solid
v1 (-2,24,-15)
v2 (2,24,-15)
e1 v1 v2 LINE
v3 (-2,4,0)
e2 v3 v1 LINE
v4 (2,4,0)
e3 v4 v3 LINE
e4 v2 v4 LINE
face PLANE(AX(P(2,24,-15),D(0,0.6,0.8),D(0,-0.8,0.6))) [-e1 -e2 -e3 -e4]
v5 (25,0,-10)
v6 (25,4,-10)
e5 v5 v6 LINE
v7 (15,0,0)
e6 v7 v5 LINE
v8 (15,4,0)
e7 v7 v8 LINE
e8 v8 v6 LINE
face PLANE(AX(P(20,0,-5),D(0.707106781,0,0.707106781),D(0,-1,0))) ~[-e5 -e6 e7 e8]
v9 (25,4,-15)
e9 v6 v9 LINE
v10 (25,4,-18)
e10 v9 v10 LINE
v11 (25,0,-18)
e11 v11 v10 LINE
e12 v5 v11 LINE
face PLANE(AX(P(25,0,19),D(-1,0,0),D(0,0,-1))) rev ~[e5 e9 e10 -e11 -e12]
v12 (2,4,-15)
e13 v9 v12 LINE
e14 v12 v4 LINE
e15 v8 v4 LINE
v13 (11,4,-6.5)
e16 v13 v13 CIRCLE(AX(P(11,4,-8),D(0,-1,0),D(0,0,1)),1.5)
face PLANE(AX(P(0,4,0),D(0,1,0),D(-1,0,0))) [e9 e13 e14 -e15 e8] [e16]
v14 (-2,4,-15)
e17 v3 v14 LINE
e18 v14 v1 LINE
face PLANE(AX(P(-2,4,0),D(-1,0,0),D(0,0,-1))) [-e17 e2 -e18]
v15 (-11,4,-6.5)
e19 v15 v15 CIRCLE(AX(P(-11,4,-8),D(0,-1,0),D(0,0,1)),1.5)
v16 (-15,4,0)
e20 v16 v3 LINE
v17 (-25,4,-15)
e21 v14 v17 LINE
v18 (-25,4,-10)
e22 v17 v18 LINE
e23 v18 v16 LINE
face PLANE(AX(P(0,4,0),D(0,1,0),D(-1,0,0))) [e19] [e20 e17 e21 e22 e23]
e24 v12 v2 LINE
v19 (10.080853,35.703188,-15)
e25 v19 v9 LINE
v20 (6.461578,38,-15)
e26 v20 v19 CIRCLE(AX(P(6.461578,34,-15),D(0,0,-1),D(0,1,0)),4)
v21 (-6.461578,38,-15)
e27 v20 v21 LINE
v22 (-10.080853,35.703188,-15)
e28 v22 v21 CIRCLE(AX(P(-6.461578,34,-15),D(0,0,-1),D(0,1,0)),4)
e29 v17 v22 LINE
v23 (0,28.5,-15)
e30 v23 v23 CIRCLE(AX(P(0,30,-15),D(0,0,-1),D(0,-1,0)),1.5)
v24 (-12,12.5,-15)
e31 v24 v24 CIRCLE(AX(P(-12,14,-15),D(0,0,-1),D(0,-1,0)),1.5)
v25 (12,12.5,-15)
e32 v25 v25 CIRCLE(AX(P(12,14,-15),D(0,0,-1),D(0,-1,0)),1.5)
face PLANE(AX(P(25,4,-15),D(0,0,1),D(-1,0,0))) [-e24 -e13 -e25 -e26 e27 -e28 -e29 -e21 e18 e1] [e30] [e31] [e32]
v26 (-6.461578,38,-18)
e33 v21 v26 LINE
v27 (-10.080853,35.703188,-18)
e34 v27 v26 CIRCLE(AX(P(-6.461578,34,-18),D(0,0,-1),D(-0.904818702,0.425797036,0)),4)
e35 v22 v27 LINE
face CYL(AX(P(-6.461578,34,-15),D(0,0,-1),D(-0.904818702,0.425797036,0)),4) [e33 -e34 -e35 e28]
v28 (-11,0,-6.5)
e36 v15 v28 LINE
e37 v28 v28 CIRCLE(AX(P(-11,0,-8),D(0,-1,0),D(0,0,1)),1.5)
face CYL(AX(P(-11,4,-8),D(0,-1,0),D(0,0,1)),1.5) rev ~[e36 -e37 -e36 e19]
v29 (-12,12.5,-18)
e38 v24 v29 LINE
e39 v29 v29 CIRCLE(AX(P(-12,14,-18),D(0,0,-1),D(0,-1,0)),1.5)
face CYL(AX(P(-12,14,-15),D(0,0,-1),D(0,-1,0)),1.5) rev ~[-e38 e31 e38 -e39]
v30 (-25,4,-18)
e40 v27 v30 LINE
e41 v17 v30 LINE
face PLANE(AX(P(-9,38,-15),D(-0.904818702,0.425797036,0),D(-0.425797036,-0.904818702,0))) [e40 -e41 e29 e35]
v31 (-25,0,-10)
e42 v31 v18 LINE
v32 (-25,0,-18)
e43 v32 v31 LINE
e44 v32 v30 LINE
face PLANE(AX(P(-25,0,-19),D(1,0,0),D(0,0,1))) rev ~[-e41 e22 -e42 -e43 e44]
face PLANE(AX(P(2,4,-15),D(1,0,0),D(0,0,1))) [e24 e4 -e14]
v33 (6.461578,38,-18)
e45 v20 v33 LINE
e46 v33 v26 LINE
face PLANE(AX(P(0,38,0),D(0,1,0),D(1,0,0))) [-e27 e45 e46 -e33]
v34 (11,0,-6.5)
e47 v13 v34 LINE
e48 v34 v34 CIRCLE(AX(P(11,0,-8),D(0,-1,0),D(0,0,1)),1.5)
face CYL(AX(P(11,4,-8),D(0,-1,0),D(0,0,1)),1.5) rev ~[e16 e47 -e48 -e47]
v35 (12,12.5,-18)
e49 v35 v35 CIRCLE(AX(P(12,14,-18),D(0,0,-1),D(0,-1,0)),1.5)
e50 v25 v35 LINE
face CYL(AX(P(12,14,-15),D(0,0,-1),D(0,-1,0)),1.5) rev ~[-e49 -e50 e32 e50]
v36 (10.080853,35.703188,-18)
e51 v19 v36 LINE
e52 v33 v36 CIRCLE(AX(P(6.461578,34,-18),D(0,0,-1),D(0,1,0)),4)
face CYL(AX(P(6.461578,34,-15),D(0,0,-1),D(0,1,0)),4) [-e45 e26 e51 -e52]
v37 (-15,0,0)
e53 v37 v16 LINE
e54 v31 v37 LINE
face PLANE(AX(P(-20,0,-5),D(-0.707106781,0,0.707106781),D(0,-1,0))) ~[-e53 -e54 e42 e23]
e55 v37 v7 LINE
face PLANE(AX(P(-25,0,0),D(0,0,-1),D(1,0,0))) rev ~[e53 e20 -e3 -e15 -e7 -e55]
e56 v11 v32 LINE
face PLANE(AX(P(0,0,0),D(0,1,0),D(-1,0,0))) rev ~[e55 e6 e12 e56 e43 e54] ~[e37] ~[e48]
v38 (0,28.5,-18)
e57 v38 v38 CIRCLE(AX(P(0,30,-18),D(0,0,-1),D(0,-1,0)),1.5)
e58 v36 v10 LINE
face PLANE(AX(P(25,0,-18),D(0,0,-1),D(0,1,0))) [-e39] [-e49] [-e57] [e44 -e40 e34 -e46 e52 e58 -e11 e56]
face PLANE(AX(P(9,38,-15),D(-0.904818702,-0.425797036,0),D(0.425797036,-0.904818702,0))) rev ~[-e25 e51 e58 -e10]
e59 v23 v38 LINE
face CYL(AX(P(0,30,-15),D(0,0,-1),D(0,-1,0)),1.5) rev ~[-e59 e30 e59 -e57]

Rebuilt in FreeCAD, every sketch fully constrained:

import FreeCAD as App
import Part
import Sketcher

V = App.Vector


def edges_at(feature, points):
    """Names of the edges that pass closest to the given points."""
    edges = feature.Shape.Edges
    near = lambda p: min(range(len(edges)), key=lambda i: edges[i].distToShape(Part.Vertex(*p))[0])
    return sorted({f"Edge{near(p) + 1}" for p in points})

doc = App.newDocument("Part")
body = doc.addObject("PartDesign::Body", "Body")

# Sketch on XZ plane
sketch1 = doc.addObject("Sketcher::SketchObject", "Sketch")
body.addObject(sketch1)
sketch1.AttachmentSupport = (doc.XZ_Plane, [""])
sketch1.MapMode = "FlatFace"
sketch1.addGeometry(Part.LineSegment(V(-25, -19, 0), V(-25, 19, 0)), False)
sketch1.addGeometry(Part.LineSegment(V(-25, 19, 0), V(25, 19, 0)), False)
sketch1.addGeometry(Part.LineSegment(V(25, 19, 0), V(25, -19, 0)), False)
sketch1.addGeometry(Part.LineSegment(V(25, -19, 0), V(-25, -19, 0)), False)
sketch1.addConstraint(Sketcher.Constraint("Coincident", 0, 2, 1, 1))
sketch1.addConstraint(Sketcher.Constraint("Coincident", 1, 2, 2, 1))
sketch1.addConstraint(Sketcher.Constraint("Coincident", 2, 2, 3, 1))
sketch1.addConstraint(Sketcher.Constraint("Coincident", 3, 2, 0, 1))
sketch1.addConstraint(Sketcher.Constraint("Vertical", 0))
sketch1.addConstraint(Sketcher.Constraint("Horizontal", 1))
sketch1.addConstraint(Sketcher.Constraint("Vertical", 2))
sketch1.addConstraint(Sketcher.Constraint("Horizontal", 3))
sketch1.addConstraint(Sketcher.Constraint("Symmetric", 0, 2, 2, 2, -1, 1))
sketch1.addConstraint(Sketcher.Constraint("DistanceX", 1, 1, 1, 2, 50.0))
sketch1.addConstraint(Sketcher.Constraint("DistanceY", 0, 1, 0, 2, 38.0))
pad1 = doc.addObject("PartDesign::Pad", "Pad")
body.addObject(pad1)
pad1.Profile = sketch1
pad1.Length = 4
pad1.Reversed = True

# Sketch on XZ plane
sketch2 = doc.addObject("Sketcher::SketchObject", "Sketch001")
body.addObject(sketch2)
sketch2.AttachmentSupport = (doc.XZ_Plane, [""])
sketch2.MapMode = "FlatFace"
sketch2.AttachmentOffset = App.Placement(V(0, 0, -4), App.Rotation())
sketch2.addGeometry(Part.LineSegment(V(25, -19, 0), V(-25, -19, 0)), False)
sketch2.addGeometry(Part.LineSegment(V(-25, -19, 0), V(-25, -15, 0)), False)
sketch2.addGeometry(Part.LineSegment(V(-25, -15, 0), V(25, -15, 0)), False)
sketch2.addGeometry(Part.LineSegment(V(25, -15, 0), V(25, -19, 0)), False)
sketch2.addConstraint(Sketcher.Constraint("Coincident", 0, 2, 1, 1))
sketch2.addConstraint(Sketcher.Constraint("Coincident", 1, 2, 2, 1))
sketch2.addConstraint(Sketcher.Constraint("Coincident", 2, 2, 3, 1))
sketch2.addConstraint(Sketcher.Constraint("Coincident", 3, 2, 0, 1))
sketch2.addConstraint(Sketcher.Constraint("Horizontal", 0))
sketch2.addConstraint(Sketcher.Constraint("Vertical", 1))
sketch2.addConstraint(Sketcher.Constraint("Horizontal", 2))
sketch2.addConstraint(Sketcher.Constraint("Vertical", 3))
sketch2.addConstraint(Sketcher.Constraint("DistanceY", 1, 1, 1, 2, 4.0))
sketch2.addConstraint(Sketcher.Constraint("DistanceX", 0, 2, 0, 1, 50.0))
sketch2.addConstraint(Sketcher.Constraint("DistanceX", 0, 2, -1, 1, 25.0))
sketch2.addConstraint(Sketcher.Constraint("DistanceY", 0, 2, -1, 1, 19.0))
pad2 = doc.addObject("PartDesign::Pad", "Pad001")
body.addObject(pad2)
pad2.Profile = sketch2
pad2.Length = 34
pad2.Reversed = True

# Sketch on XZ plane
sketch3 = doc.addObject("Sketcher::SketchObject", "Sketch002")
body.addObject(sketch3)
sketch3.AttachmentSupport = (doc.XZ_Plane, [""])
sketch3.MapMode = "FlatFace"
sketch3.AttachmentOffset = App.Placement(V(0, 0, -4), App.Rotation())
sketch3.addGeometry(Part.Circle(V(-11, -8, 0), V(0, 0, 1), 1.5), False)
sketch3.addGeometry(Part.Circle(V(-11, 8, 0), V(0, 0, 1), 1.5), False)
sketch3.addGeometry(Part.Circle(V(11, 8, 0), V(0, 0, 1), 1.5), False)
sketch3.addGeometry(Part.Circle(V(11, -8, 0), V(0, 0, 1), 1.5), False)
sketch3.addConstraint(Sketcher.Constraint("Equal", 0, 1))
sketch3.addConstraint(Sketcher.Constraint("Equal", 1, 2))
sketch3.addConstraint(Sketcher.Constraint("Equal", 2, 3))
sketch3.addConstraint(Sketcher.Constraint("Symmetric", 0, 3, 2, 3, -1, 1))
sketch3.addConstraint(Sketcher.Constraint("Symmetric", 1, 3, 3, 3, -1, 1))
sketch3.addConstraint(Sketcher.Constraint("Symmetric", 1, 3, 2, 3, -2))
sketch3.addConstraint(Sketcher.Constraint("Diameter", 0, 3.0))
sketch3.addConstraint(Sketcher.Constraint("DistanceX", 0, 3, -1, 1, 11.0))
sketch3.addConstraint(Sketcher.Constraint("DistanceY", 0, 3, -1, 1, 8.0))
doc.recompute()
hole = doc.addObject("PartDesign::Hole", "Hole")
body.addObject(hole)
hole.Profile = sketch3
hole.ThreadType = "None"
hole.Diameter = 3
hole.DepthType = "Dimension"
hole.Depth = 8
hole.DrillPoint = "Angled"
hole.DrillPointAngle = 118
hole.Reversed = True

# Sketch on XY plane
sketch4 = doc.addObject("Sketcher::SketchObject", "Sketch003")
body.addObject(sketch4)
sketch4.AttachmentSupport = (doc.XY_Plane, [""])
sketch4.MapMode = "FlatFace"
sketch4.AttachmentOffset = App.Placement(V(0, 0, -15), App.Rotation())
sketch4.addGeometry(Part.Circle(V(0, 30, 0), V(0, 0, 1), 1.5), False)
sketch4.addGeometry(Part.Circle(V(-12, 14, 0), V(0, 0, 1), 1.5), False)
sketch4.addGeometry(Part.Circle(V(12, 14, 0), V(0, 0, 1), 1.5), False)
sketch4.addConstraint(Sketcher.Constraint("Equal", 0, 1))
sketch4.addConstraint(Sketcher.Constraint("Equal", 1, 2))
sketch4.addConstraint(Sketcher.Constraint("Symmetric", 1, 3, 2, 3, -2))
sketch4.addConstraint(Sketcher.Constraint("PointOnObject", 0, 3, -2))
sketch4.addConstraint(Sketcher.Constraint("Diameter", 0, 3.0))
sketch4.addConstraint(Sketcher.Constraint("DistanceY", -1, 1, 0, 3, 30.0))
sketch4.addConstraint(Sketcher.Constraint("DistanceX", 1, 3, -1, 1, 12.0))
sketch4.addConstraint(Sketcher.Constraint("DistanceY", -1, 1, 1, 3, 14.0))
doc.recompute()
hole2 = doc.addObject("PartDesign::Hole", "Hole001")
body.addObject(hole2)
hole2.Profile = sketch4
hole2.ThreadType = "None"
hole2.Diameter = 3
hole2.DepthType = "Dimension"
hole2.Depth = 8
hole2.DrillPoint = "Angled"
hole2.DrillPointAngle = 118

# Sketch on XY plane
sketch5 = doc.addObject("Sketcher::SketchObject", "Sketch004")
body.addObject(sketch5)
sketch5.AttachmentSupport = (doc.XY_Plane, [""])
sketch5.MapMode = "FlatFace"
sketch5.AttachmentOffset = App.Placement(V(0, 0, -15), App.Rotation())
sketch5.addGeometry(Part.LineSegment(V(-9, 38, 0), V(-25, 38, 0)), False)
sketch5.addGeometry(Part.LineSegment(V(-25, 38, 0), V(-25, 4, 0)), False)
sketch5.addGeometry(Part.LineSegment(V(-25, 4, 0), V(-9, 38, 0)), False)
sketch5.addGeometry(Part.LineSegment(V(25, 38, 0), V(9, 38, 0)), False)
sketch5.addGeometry(Part.LineSegment(V(9, 38, 0), V(25, 4, 0)), False)
sketch5.addGeometry(Part.LineSegment(V(25, 4, 0), V(25, 38, 0)), False)
sketch5.addConstraint(Sketcher.Constraint("Coincident", 0, 2, 1, 1))
sketch5.addConstraint(Sketcher.Constraint("Coincident", 1, 2, 2, 1))
sketch5.addConstraint(Sketcher.Constraint("Coincident", 2, 2, 0, 1))
sketch5.addConstraint(Sketcher.Constraint("Coincident", 3, 2, 4, 1))
sketch5.addConstraint(Sketcher.Constraint("Coincident", 4, 2, 5, 1))
sketch5.addConstraint(Sketcher.Constraint("Coincident", 5, 2, 3, 1))
sketch5.addConstraint(Sketcher.Constraint("Horizontal", 0))
sketch5.addConstraint(Sketcher.Constraint("Vertical", 1))
sketch5.addConstraint(Sketcher.Constraint("Horizontal", 3))
sketch5.addConstraint(Sketcher.Constraint("Vertical", 5))
sketch5.addConstraint(Sketcher.Constraint("Symmetric", 2, 2, 3, 2, -2))
sketch5.addConstraint(Sketcher.Constraint("Symmetric", 1, 2, 4, 2, -2))
sketch5.addConstraint(Sketcher.Constraint("DistanceX", 0, 2, 0, 1, 16.0))
sketch5.addConstraint(Sketcher.Constraint("DistanceY", 1, 2, 1, 1, 34.0))
sketch5.addConstraint(Sketcher.Constraint("DistanceX", 0, 2, -1, 1, 25.0))
sketch5.addConstraint(Sketcher.Constraint("DistanceY", -1, 1, 0, 2, 38.0))
pocket1 = doc.addObject("PartDesign::Pocket", "Pocket")
body.addObject(pocket1)
pocket1.Profile = sketch5
pocket1.Length = 34
doc.recompute()

fillet = doc.addObject("PartDesign::Fillet", "Fillet")
body.addObject(fillet)
fillet.Base = (pocket1, edges_at(pocket1, [(-9, 38, -17), (9, 38, -17)]))
fillet.Radius = 4

# Sketch on YZ plane
sketch6 = doc.addObject("Sketcher::SketchObject", "Sketch005")
body.addObject(sketch6)
sketch6.AttachmentSupport = (doc.YZ_Plane, [""])
sketch6.MapMode = "FlatFace"
sketch6.AttachmentOffset = App.Placement(V(0, 0, 25), App.Rotation())
sketch6.addGeometry(Part.LineSegment(V(0, -18, 0), V(0, -19, 0)), False)
sketch6.addGeometry(Part.LineSegment(V(0, -19, 0), V(38, -19, 0)), False)
sketch6.addGeometry(Part.LineSegment(V(38, -19, 0), V(38, -18, 0)), False)
sketch6.addGeometry(Part.LineSegment(V(38, -18, 0), V(0, -18, 0)), False)
sketch6.addConstraint(Sketcher.Constraint("Coincident", 0, 2, 1, 1))
sketch6.addConstraint(Sketcher.Constraint("Coincident", 1, 2, 2, 1))
sketch6.addConstraint(Sketcher.Constraint("Coincident", 2, 2, 3, 1))
sketch6.addConstraint(Sketcher.Constraint("Coincident", 3, 2, 0, 1))
sketch6.addConstraint(Sketcher.Constraint("Vertical", 0))
sketch6.addConstraint(Sketcher.Constraint("Horizontal", 1))
sketch6.addConstraint(Sketcher.Constraint("Vertical", 2))
sketch6.addConstraint(Sketcher.Constraint("Horizontal", 3))
sketch6.addConstraint(Sketcher.Constraint("PointOnObject", 0, 2, -2))
sketch6.addConstraint(Sketcher.Constraint("DistanceX", 1, 1, 1, 2, 38.0))
sketch6.addConstraint(Sketcher.Constraint("DistanceY", 0, 2, 0, 1, 1.0))
sketch6.addConstraint(Sketcher.Constraint("DistanceY", 0, 2, -1, 1, 19.0))
pocket2 = doc.addObject("PartDesign::Pocket", "Pocket001")
body.addObject(pocket2)
pocket2.Profile = sketch6
pocket2.Type = "ThroughAll"

# Sketch on XZ plane
sketch7 = doc.addObject("Sketcher::SketchObject", "Sketch006")
body.addObject(sketch7)
sketch7.AttachmentSupport = (doc.XZ_Plane, [""])
sketch7.MapMode = "FlatFace"
sketch7.addGeometry(Part.LineSegment(V(25, 0, 0), V(25, 19, 0)), False)
sketch7.addGeometry(Part.LineSegment(V(25, 19, 0), V(-25, 19, 0)), False)
sketch7.addGeometry(Part.LineSegment(V(-25, 19, 0), V(-25, 0, 0)), False)
sketch7.addGeometry(Part.LineSegment(V(-25, 0, 0), V(25, 0, 0)), False)
sketch7.addConstraint(Sketcher.Constraint("Coincident", 0, 2, 1, 1))
sketch7.addConstraint(Sketcher.Constraint("Coincident", 1, 2, 2, 1))
sketch7.addConstraint(Sketcher.Constraint("Coincident", 2, 2, 3, 1))
sketch7.addConstraint(Sketcher.Constraint("Coincident", 3, 2, 0, 1))
sketch7.addConstraint(Sketcher.Constraint("Vertical", 0))
sketch7.addConstraint(Sketcher.Constraint("Horizontal", 1))
sketch7.addConstraint(Sketcher.Constraint("Vertical", 2))
sketch7.addConstraint(Sketcher.Constraint("Horizontal", 3))
sketch7.addConstraint(Sketcher.Constraint("Symmetric", 2, 2, 3, 2, -1, 1))
sketch7.addConstraint(Sketcher.Constraint("DistanceY", 0, 1, 0, 2, 19.0))
sketch7.addConstraint(Sketcher.Constraint("DistanceX", 1, 2, 1, 1, 50.0))
pocket3 = doc.addObject("PartDesign::Pocket", "Pocket002")
body.addObject(pocket3)
pocket3.Profile = sketch7
pocket3.Length = 10

# Sketch on XZ plane
sketch8 = doc.addObject("Sketcher::SketchObject", "Sketch007")
body.addObject(sketch8)
sketch8.AttachmentSupport = (doc.XZ_Plane, [""])
sketch8.MapMode = "FlatFace"
sketch8.AttachmentOffset = App.Placement(V(0, 0, -4), App.Rotation())
sketch8.addGeometry(Part.LineSegment(V(-2, 0, 0), V(2, 0, 0)), False)
sketch8.addGeometry(Part.LineSegment(V(2, 0, 0), V(2, -15, 0)), False)
sketch8.addGeometry(Part.LineSegment(V(2, -15, 0), V(-2, -15, 0)), False)
sketch8.addGeometry(Part.LineSegment(V(-2, -15, 0), V(-2, 0, 0)), False)
sketch8.addConstraint(Sketcher.Constraint("Coincident", 0, 2, 1, 1))
sketch8.addConstraint(Sketcher.Constraint("Coincident", 1, 2, 2, 1))
sketch8.addConstraint(Sketcher.Constraint("Coincident", 2, 2, 3, 1))
sketch8.addConstraint(Sketcher.Constraint("Coincident", 3, 2, 0, 1))
sketch8.addConstraint(Sketcher.Constraint("Horizontal", 0))
sketch8.addConstraint(Sketcher.Constraint("Vertical", 1))
sketch8.addConstraint(Sketcher.Constraint("Horizontal", 2))
sketch8.addConstraint(Sketcher.Constraint("Vertical", 3))
sketch8.addConstraint(Sketcher.Constraint("Symmetric", 0, 2, 3, 2, -1, 1))
sketch8.addConstraint(Sketcher.Constraint("DistanceX", 0, 1, 0, 2, 4.0))
sketch8.addConstraint(Sketcher.Constraint("DistanceY", 1, 2, 1, 1, 15.0))
pad3 = doc.addObject("PartDesign::Pad", "Pad002")
body.addObject(pad3)
pad3.Profile = sketch8
pad3.Length = 20
pad3.Reversed = True

# Sketch on YZ plane
sketch9 = doc.addObject("Sketcher::SketchObject", "Sketch008")
body.addObject(sketch9)
sketch9.AttachmentSupport = (doc.YZ_Plane, [""])
sketch9.MapMode = "FlatFace"
sketch9.AttachmentOffset = App.Placement(V(0, 0, 2), App.Rotation())
sketch9.addGeometry(Part.LineSegment(V(4, 0, 0), V(24, -15, 0)), False)
sketch9.addGeometry(Part.LineSegment(V(24, -15, 0), V(24, 0, 0)), False)
sketch9.addGeometry(Part.LineSegment(V(24, 0, 0), V(4, 0, 0)), False)
sketch9.addConstraint(Sketcher.Constraint("Coincident", 0, 2, 1, 1))
sketch9.addConstraint(Sketcher.Constraint("Coincident", 1, 2, 2, 1))
sketch9.addConstraint(Sketcher.Constraint("Coincident", 2, 2, 0, 1))
sketch9.addConstraint(Sketcher.Constraint("Vertical", 1))
sketch9.addConstraint(Sketcher.Constraint("Horizontal", 2))
sketch9.addConstraint(Sketcher.Constraint("PointOnObject", 1, 2, -1))
sketch9.addConstraint(Sketcher.Constraint("DistanceX", 2, 2, 2, 1, 20.0))
sketch9.addConstraint(Sketcher.Constraint("DistanceY", 1, 1, 1, 2, 15.0))
sketch9.addConstraint(Sketcher.Constraint("DistanceX", -1, 1, 0, 2, 24.0))
pocket4 = doc.addObject("PartDesign::Pocket", "Pocket003")
body.addObject(pocket4)
pocket4.Profile = sketch9
pocket4.Length = 20
doc.recompute()

chamfer = doc.addObject("PartDesign::Chamfer", "Chamfer")
body.addObject(chamfer)
chamfer.Base = (pocket4, edges_at(pocket4, [(25, 2, 0), (-25, 2, 0)]))
chamfer.Size = 10

doc.recompute()
